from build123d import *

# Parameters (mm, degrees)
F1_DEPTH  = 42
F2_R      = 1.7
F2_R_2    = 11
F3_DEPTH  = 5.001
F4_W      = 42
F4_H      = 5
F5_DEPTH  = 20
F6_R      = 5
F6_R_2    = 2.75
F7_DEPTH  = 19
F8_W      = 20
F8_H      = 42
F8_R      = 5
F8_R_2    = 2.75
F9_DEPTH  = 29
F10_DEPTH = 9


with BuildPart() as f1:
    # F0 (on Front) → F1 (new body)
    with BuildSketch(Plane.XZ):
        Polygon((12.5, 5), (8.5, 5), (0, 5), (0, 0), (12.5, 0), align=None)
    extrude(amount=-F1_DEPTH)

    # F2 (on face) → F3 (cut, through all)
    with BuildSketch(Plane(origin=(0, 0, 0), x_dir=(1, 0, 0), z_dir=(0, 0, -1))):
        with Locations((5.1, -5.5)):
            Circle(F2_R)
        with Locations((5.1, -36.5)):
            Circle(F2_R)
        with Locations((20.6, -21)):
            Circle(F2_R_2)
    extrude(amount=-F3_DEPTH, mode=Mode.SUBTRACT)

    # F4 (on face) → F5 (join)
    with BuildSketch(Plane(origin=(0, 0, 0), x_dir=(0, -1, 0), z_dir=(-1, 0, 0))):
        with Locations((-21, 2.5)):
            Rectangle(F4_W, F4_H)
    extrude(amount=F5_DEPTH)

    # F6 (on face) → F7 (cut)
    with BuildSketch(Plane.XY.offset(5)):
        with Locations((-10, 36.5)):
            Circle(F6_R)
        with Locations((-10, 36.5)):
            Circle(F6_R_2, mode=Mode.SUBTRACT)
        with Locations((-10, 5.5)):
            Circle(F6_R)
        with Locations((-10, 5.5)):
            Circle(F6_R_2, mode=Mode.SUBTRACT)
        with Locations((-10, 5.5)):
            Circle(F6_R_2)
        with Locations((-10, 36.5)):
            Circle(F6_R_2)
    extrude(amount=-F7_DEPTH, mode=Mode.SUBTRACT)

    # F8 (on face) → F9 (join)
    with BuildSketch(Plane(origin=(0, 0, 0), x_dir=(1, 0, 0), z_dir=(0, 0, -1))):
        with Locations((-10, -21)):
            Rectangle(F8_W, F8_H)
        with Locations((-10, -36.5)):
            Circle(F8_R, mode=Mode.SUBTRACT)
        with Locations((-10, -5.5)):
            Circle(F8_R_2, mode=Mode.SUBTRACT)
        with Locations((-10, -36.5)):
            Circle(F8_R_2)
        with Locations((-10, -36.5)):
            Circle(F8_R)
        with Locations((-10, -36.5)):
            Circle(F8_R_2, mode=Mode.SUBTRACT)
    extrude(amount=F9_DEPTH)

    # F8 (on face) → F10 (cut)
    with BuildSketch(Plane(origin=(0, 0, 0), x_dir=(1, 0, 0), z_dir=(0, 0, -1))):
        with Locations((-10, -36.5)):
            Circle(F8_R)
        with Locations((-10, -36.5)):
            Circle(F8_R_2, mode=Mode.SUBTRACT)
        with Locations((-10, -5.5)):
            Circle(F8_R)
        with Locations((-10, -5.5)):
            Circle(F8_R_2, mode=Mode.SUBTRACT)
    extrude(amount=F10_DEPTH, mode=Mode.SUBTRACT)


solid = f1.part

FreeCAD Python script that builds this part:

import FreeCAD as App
import Part
import Sketcher

V = App.Vector


def add_polygon(sketch, points):
    """Adds a closed chain of lines whose ends are joined by coincident constraints."""
    first, n = sketch.GeometryCount, len(points)
    for a, b in zip(points, points[1:] + points[:1]):
        sketch.addGeometry(Part.LineSegment(App.Vector(*a, 0), App.Vector(*b, 0)), False)
    for i in range(n):
        sketch.addConstraint(Sketcher.Constraint("Coincident", first + i, 2, first + (i + 1) % n, 1))

doc = App.newDocument("Part")
body = doc.addObject("PartDesign::Body", "Body")

sketch1 = body.newObject("Sketcher::SketchObject", "Sketch")
sketch1.AttachmentSupport = (doc.getObject("XZ_Plane"), [""])
sketch1.MapMode = "FlatFace"
add_polygon(sketch1, [(12, 5), (0, 5), (0, 0), (12, 0)])
sketch1.addConstraint(Sketcher.Constraint("Horizontal", 0))
sketch1.addConstraint(Sketcher.Constraint("Vertical", 1))
sketch1.addConstraint(Sketcher.Constraint("Horizontal", 2))
sketch1.addConstraint(Sketcher.Constraint("Vertical", 3))
sketch1.addConstraint(Sketcher.Constraint("Coincident", 1, 2, -1, 1))
sketch1.addConstraint(Sketcher.Constraint("DistanceY", 1, 2, 1, 1, 5.0))
sketch1.addConstraint(Sketcher.Constraint("DistanceX", 0, 2, 0, 1, 12.5))
pad1 = body.newObject("PartDesign::Pad", "Pad")
pad1.Profile = sketch1
pad1.Length = 42
pad1.Reversed = True

sketch2 = body.newObject("Sketcher::SketchObject", "Sketch001")
sketch2.AttachmentSupport = (doc.getObject("XY_Plane"), [""])
sketch2.MapMode = "FlatFace"
sketch2.addGeometry(Part.Circle(V(5.1, 5.5, 0), V(0, 0, 1), 1.7), False)
sketch2.addGeometry(Part.Circle(V(5.1, 36.5, 0), V(0, 0, 1), 1.7), False)
sketch2.addGeometry(Part.Circle(V(20.6, 21, 0), V(0, 0, 1), 11), False)
sketch2.addConstraint(Sketcher.Constraint("Equal", 0, 1))
sketch2.addConstraint(Sketcher.Constraint("Vertical", 0, 3, 1, 3))
sketch2.addConstraint(Sketcher.Constraint("Diameter", 2, 22.0))
sketch2.addConstraint(Sketcher.Constraint("Diameter", 0, 3.4))
sketch2.addConstraint(Sketcher.Constraint("DistanceY", -1, 1, 2, 3, 21.0))
sketch2.addConstraint(Sketcher.Constraint("DistanceY", 0, 3, 1, 3, 31.0))
sketch2.addConstraint(Sketcher.Constraint("DistanceX", -1, 1, 0, 3, 5.1))
sketch2.addConstraint(Sketcher.Constraint("DistanceY", -1, 1, 0, 3, 5.5))
sketch2.addConstraint(Sketcher.Constraint("DistanceX", -1, 1, 2, 3, 20.6))
pocket1 = body.newObject("PartDesign::Pocket", "Pocket")
pocket1.Profile = sketch2
pocket1.Type = "ThroughAll"
pocket1.Reversed = True

sketch3 = body.newObject("Sketcher::SketchObject", "Sketch002")
sketch3.AttachmentSupport = (doc.getObject("YZ_Plane"), [""])
sketch3.MapMode = "FlatFace"
add_polygon(sketch3, [(42, 5), (42, 0), (0, 0), (0, 5)])
sketch3.addConstraint(Sketcher.Constraint("Vertical", 0))
sketch3.addConstraint(Sketcher.Constraint("Horizontal", 1))
sketch3.addConstraint(Sketcher.Constraint("Vertical", 2))
sketch3.addConstraint(Sketcher.Constraint("Horizontal", 3))
sketch3.addConstraint(Sketcher.Constraint("Coincident", 1, 2, -1, 1))
sketch3.addConstraint(Sketcher.Constraint("DistanceX", 1, 2, 1, 1, 42.0))
sketch3.addConstraint(Sketcher.Constraint("DistanceY", 0, 2, 0, 1, 5.0))
pad2 = body.newObject("PartDesign::Pad", "Pad001")
pad2.Profile = sketch3
pad2.Length = 20
pad2.Reversed = True

sketch4 = body.newObject("Sketcher::SketchObject", "Sketch003")
sketch4.AttachmentSupport = (doc.getObject("XY_Plane"), [""])
sketch4.MapMode = "FlatFace"
sketch4.AttachmentOffset = App.Placement(V(0, 0, 5), App.Rotation())
sketch4.addGeometry(Part.Circle(V(-10, 36, 0), V(0, 0, 1), 5), False)
sketch4.addGeometry(Part.Circle(V(-10, 6, 0), V(0, 0, 1), 5), False)
sketch4.addConstraint(Sketcher.Constraint("Equal", 0, 1))
sketch4.addConstraint(Sketcher.Constraint("Vertical", 0, 3, 1, 3))
sketch4.addConstraint(Sketcher.Constraint("Diameter", 0, 10.0))
sketch4.addConstraint(Sketcher.Constraint("DistanceX", 0, 3, -1, 1, 10.0))
sketch4.addConstraint(Sketcher.Constraint("DistanceY", 1, 3, 0, 3, 31.0))
sketch4.addConstraint(Sketcher.Constraint("DistanceY", -1, 1, 0, 3, 36.5))
pocket2 = body.newObject("PartDesign::Pocket", "Pocket001")
pocket2.Profile = sketch4
pocket2.Length = 19

sketch5 = body.newObject("Sketcher::SketchObject", "Sketch004")
sketch5.AttachmentSupport = (doc.getObject("XY_Plane"), [""])
sketch5.MapMode = "FlatFace"
add_polygon(sketch5, [(-20, 0), (-20, 42), (0, 42), (0, 0)])
sketch5.addGeometry(Part.Circle(V(-10, 36.5, 0), V(0, 0, 1), 2.8), False)
sketch5.addGeometry(Part.Circle(V(-10, 5.5, 0), V(0, 0, 1), 2.8), False)
sketch5.addConstraint(Sketcher.Constraint("Vertical", 0))
sketch5.addConstraint(Sketcher.Constraint("Horizontal", 1))
sketch5.addConstraint(Sketcher.Constraint("Vertical", 2))
sketch5.addConstraint(Sketcher.Constraint("Horizontal", 3))
sketch5.addConstraint(Sketcher.Constraint("Coincident", 2, 2, -1, 1))
sketch5.addConstraint(Sketcher.Constraint("Equal", 4, 5))
sketch5.addConstraint(Sketcher.Constraint("Vertical", 4, 3, 5, 3))
sketch5.addConstraint(Sketcher.Constraint("Diameter", 4, 5.5))
sketch5.addConstraint(Sketcher.Constraint("DistanceX", 1, 1, 1, 2, 20.0))
sketch5.addConstraint(Sketcher.Constraint("DistanceY", 0, 1, 0, 2, 42.0))
sketch5.addConstraint(Sketcher.Constraint("DistanceX", 4, 3, -1, 1, 10.0))
sketch5.addConstraint(Sketcher.Constraint("DistanceY", 5, 3, 4, 3, 31.0))
sketch5.addConstraint(Sketcher.Constraint("DistanceY", -1, 1, 4, 3, 36.5))
pad3 = body.newObject("PartDesign::Pad", "Pad002")
pad3.Profile = sketch5
pad3.Length = 29
pad3.Reversed = True

sketch6 = body.newObject("Sketcher::SketchObject", "Sketch005")
sketch6.AttachmentSupport = (doc.getObject("XY_Plane"), [""])
sketch6.MapMode = "FlatFace"
sketch6.addGeometry(Part.Circle(V(-10, 36.5, 0), V(0, 0, 1), 5), False)
sketch6.addGeometry(Part.Circle(V(-10, 36.5, 0), V(0, 0, 1), 2.8), False)
sketch6.addGeometry(Part.Circle(V(-10, 5.5, 0), V(0, 0, 1), 5), False)
sketch6.addGeometry(Part.Circle(V(-10, 5.5, 0), V(0, 0, 1), 2.8), False)
sketch6.addConstraint(Sketcher.Constraint("Coincident", 1, 3, 0, 3))
sketch6.addConstraint(Sketcher.Constraint("Coincident", 3, 3, 2, 3))
sketch6.addConstraint(Sketcher.Constraint("Equal", 0, 2))
sketch6.addConstraint(Sketcher.Constraint("Equal", 1, 3))
sketch6.addConstraint(Sketcher.Constraint("Vertical", 1, 3, 2, 3))
sketch6.addConstraint(Sketcher.Constraint("Diameter", 0, 10.0))
sketch6.addConstraint(Sketcher.Constraint("Diameter", 1, 5.5))
sketch6.addConstraint(Sketcher.Constraint("DistanceX", 0, 3, -1, 1, 10.0))
sketch6.addConstraint(Sketcher.Constraint("DistanceY", 2, 3, 0, 3, 31.0))
sketch6.addConstraint(Sketcher.Constraint("DistanceY", -1, 1, 0, 3, 36.5))
pocket3 = body.newObject("PartDesign::Pocket", "Pocket002")
pocket3.Profile = sketch6
pocket3.Length = 9

doc.recompute()
